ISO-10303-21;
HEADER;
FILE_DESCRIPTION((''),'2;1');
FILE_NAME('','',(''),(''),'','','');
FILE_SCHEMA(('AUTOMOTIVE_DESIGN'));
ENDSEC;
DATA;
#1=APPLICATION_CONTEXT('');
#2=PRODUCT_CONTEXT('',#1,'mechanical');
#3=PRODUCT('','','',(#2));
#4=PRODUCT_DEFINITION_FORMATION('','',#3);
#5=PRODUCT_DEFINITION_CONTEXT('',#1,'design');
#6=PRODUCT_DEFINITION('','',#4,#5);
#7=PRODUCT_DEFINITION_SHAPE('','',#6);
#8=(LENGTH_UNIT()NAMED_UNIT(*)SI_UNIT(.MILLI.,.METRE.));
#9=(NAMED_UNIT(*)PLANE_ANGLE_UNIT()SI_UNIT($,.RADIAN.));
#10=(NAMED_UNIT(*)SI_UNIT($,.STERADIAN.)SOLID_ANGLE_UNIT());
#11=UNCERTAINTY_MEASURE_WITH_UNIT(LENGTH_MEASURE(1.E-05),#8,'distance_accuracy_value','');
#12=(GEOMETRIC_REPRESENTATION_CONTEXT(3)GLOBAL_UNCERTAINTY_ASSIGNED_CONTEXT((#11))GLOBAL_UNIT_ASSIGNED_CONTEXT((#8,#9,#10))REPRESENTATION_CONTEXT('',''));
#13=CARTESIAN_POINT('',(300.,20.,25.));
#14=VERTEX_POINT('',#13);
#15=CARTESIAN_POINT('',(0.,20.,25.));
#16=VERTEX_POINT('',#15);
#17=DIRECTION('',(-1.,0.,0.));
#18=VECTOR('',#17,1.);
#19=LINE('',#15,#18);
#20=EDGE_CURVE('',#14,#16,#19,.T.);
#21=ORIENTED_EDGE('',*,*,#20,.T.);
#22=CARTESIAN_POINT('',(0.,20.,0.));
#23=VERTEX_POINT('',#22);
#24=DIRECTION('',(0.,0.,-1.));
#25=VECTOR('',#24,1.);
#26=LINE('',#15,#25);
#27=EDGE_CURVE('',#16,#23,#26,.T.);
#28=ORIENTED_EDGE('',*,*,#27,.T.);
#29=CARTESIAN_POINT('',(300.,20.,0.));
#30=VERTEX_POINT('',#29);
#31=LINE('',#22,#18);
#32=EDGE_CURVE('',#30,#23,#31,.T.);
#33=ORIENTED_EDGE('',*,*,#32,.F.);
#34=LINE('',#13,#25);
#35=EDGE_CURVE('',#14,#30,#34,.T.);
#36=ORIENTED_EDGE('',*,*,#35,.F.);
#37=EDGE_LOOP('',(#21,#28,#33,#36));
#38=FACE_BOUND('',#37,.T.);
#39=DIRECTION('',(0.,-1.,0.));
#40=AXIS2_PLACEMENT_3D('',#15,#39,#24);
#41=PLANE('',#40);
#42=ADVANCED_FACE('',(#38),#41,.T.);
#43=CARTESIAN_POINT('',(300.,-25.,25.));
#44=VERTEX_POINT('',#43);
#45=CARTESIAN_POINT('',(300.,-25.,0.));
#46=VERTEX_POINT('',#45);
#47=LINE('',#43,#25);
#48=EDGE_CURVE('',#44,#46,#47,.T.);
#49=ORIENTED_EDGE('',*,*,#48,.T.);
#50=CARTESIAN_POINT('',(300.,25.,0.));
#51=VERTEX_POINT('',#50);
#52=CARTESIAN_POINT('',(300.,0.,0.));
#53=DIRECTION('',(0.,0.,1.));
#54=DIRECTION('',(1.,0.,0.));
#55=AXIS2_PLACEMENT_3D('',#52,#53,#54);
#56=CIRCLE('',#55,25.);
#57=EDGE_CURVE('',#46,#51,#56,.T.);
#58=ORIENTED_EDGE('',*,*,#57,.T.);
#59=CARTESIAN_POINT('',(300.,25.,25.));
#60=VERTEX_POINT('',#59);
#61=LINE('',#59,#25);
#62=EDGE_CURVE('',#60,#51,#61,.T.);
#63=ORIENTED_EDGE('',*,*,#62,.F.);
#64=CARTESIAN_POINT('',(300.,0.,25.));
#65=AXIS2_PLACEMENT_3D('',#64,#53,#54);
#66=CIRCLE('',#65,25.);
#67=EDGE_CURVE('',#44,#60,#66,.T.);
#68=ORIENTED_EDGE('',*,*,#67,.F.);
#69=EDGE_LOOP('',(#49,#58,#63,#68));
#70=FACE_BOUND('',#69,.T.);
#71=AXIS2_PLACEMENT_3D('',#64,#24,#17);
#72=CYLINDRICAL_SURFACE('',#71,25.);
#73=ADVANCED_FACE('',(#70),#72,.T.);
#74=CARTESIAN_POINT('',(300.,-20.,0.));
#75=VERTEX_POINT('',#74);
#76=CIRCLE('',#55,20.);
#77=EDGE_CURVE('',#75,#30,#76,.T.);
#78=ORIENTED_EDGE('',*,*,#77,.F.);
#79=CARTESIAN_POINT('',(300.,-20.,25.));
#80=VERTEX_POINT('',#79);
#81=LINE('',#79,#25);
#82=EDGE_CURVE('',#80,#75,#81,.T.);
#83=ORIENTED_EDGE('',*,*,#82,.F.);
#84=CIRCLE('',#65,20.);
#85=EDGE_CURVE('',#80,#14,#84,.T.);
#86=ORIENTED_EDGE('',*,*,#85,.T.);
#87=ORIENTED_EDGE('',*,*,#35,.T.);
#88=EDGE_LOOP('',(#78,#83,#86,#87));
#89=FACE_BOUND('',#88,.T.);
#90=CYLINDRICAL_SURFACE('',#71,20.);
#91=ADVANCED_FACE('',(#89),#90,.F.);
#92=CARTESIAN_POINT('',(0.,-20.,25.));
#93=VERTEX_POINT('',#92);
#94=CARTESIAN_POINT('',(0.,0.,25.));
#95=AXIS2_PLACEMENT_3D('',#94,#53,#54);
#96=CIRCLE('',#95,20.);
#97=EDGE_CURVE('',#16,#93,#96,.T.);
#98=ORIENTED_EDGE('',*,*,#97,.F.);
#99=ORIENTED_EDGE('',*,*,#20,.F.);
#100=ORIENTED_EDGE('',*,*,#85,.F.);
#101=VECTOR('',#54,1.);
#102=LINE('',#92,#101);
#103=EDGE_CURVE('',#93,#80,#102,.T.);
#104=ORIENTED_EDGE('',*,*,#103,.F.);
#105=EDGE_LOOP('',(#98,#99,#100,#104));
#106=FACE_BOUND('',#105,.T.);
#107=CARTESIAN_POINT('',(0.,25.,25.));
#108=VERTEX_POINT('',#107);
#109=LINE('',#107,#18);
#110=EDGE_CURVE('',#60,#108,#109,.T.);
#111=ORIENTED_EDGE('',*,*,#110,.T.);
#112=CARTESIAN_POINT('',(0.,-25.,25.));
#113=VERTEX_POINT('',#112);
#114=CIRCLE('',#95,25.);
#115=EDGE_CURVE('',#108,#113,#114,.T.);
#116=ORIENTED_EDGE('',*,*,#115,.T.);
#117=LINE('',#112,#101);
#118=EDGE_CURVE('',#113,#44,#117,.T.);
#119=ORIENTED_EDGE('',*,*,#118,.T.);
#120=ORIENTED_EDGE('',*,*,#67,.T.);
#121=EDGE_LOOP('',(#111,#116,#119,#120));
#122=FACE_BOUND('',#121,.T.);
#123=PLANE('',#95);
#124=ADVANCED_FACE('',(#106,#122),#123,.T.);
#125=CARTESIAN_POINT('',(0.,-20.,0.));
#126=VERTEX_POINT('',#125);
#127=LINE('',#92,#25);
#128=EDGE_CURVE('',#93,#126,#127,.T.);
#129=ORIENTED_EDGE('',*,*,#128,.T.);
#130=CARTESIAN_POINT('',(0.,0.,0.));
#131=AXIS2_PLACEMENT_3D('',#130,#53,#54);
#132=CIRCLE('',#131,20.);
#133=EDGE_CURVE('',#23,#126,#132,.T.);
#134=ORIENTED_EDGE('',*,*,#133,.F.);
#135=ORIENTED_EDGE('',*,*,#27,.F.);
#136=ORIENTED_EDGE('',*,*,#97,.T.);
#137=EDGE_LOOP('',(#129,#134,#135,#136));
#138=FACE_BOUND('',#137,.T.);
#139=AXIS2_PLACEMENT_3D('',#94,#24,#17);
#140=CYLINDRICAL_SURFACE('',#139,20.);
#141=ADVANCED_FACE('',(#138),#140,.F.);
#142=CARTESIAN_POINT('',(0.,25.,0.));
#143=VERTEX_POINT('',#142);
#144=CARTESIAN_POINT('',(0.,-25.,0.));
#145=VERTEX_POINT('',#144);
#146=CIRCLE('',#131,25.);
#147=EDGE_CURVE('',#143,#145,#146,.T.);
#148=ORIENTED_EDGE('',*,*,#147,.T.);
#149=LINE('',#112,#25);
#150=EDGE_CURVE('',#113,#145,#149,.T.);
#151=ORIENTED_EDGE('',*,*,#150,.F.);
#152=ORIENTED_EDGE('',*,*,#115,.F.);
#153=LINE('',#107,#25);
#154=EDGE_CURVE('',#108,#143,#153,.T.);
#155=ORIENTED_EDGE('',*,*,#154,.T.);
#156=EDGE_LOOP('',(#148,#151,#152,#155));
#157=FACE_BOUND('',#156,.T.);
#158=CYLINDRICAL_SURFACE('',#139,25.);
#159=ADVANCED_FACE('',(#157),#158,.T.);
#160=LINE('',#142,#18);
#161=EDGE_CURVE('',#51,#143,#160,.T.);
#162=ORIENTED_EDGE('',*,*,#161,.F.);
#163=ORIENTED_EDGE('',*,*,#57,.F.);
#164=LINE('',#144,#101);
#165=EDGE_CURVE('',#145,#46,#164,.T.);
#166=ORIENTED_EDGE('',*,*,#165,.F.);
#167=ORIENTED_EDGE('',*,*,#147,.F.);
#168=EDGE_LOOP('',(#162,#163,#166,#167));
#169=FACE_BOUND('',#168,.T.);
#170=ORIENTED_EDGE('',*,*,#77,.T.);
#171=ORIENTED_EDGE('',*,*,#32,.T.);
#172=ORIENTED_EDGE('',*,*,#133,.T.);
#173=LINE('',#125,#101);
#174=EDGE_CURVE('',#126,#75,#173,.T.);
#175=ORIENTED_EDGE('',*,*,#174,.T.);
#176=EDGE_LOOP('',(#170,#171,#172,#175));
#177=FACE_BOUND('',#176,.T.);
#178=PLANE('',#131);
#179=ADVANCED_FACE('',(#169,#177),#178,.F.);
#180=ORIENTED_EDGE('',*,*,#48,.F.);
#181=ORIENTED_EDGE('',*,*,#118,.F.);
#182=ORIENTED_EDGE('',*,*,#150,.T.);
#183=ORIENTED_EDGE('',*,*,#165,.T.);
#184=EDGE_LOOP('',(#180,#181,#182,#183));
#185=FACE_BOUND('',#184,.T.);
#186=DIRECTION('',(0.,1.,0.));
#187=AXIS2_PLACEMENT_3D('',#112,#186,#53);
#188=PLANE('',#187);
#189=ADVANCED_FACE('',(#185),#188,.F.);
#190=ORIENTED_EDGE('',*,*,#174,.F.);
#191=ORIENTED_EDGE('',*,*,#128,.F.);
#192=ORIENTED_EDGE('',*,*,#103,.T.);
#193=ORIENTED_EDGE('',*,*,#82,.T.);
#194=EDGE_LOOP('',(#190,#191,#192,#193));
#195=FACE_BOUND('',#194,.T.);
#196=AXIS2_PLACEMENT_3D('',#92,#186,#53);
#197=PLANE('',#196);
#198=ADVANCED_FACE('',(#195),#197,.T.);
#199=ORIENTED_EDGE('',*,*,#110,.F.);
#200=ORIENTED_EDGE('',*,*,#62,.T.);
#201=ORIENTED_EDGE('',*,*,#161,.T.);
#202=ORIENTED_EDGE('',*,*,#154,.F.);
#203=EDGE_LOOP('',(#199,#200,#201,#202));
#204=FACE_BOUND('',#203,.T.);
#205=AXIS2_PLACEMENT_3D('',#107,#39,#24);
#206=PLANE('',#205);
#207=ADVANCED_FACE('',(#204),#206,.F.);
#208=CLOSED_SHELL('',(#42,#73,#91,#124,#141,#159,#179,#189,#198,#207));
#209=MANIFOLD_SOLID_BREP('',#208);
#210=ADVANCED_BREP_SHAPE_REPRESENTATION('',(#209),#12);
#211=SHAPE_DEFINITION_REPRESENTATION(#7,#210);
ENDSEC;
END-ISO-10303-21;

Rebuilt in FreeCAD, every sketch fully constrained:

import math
import FreeCAD as App
import Part
import Sketcher
from FreeCAD import Vector

doc = App.newDocument("Part")
body = doc.addObject("PartDesign::Body", "Body")

# Sketch on XY plane
sketch1 = body.newObject("Sketcher::SketchObject", "Sketch")
sketch1.AttachmentSupport = (doc.getObject("XY_Plane"), [""])
sketch1.MapMode = "FlatFace"
sketch1.addGeometry([
    Part.LineSegment(Vector(300, 25, 0), Vector(0, 25, 0)),  # 0
    Part.ArcOfCircle(Part.Circle(Vector(0, 0, 0), Vector(0, 0, 1), 25), math.radians(90), math.radians(270)),  # 1
    Part.LineSegment(Vector(0, -25, 0), Vector(300, -25, 0)),  # 2
    Part.ArcOfCircle(Part.Circle(Vector(300, 0, 0), Vector(0, 0, 1), 25), math.radians(-90), math.radians(90)),  # 3
    Part.LineSegment(Vector(0, 20, 0), Vector(300, 20, 0)),  # 4
    Part.ArcOfCircle(Part.Circle(Vector(300, 0, 0), Vector(0, 0, 1), 20), math.radians(-90), math.radians(90)),  # 5
    Part.LineSegment(Vector(300, -20, 0), Vector(0, -20, 0)),  # 6
    Part.ArcOfCircle(Part.Circle(Vector(0, 0, 0), Vector(0, 0, 1), 20), math.radians(90), math.radians(270)),  # 7
], False)
sketch1.addConstraint([
    Sketcher.Constraint("Tangent", 0, 2, 1, 1),
    Sketcher.Constraint("Tangent", 1, 2, 2, 1),
    Sketcher.Constraint("Tangent", 2, 2, 3, 1),
    Sketcher.Constraint("Tangent", 3, 2, 0, 1),
    Sketcher.Constraint("Tangent", 4, 2, 5, 2),
    Sketcher.Constraint("Tangent", 5, 1, 6, 1),
    Sketcher.Constraint("Tangent", 6, 2, 7, 2),
    Sketcher.Constraint("Tangent", 7, 1, 4, 1),
    Sketcher.Constraint("Horizontal", 0),
    Sketcher.Constraint("Horizontal", 2),
    Sketcher.Constraint("Horizontal", 4),
    Sketcher.Constraint("Horizontal", 6),
    Sketcher.Constraint("Coincident", 1, 3, -1, 1),
    Sketcher.Constraint("Coincident", 7, 3, -1, 1),
    Sketcher.Constraint("Vertical", 5, 3, 2, 2),
    Sketcher.Constraint("Radius", 1, 25.0),
    Sketcher.Constraint("Radius", 5, 20.0),
    Sketcher.Constraint("DistanceX", 0, 2, 0, 1, 300.0),
])
pad1 = body.newObject("PartDesign::Pad", "Pad")
pad1.Profile = sketch1
pad1.Length = 25

doc.recompute()
